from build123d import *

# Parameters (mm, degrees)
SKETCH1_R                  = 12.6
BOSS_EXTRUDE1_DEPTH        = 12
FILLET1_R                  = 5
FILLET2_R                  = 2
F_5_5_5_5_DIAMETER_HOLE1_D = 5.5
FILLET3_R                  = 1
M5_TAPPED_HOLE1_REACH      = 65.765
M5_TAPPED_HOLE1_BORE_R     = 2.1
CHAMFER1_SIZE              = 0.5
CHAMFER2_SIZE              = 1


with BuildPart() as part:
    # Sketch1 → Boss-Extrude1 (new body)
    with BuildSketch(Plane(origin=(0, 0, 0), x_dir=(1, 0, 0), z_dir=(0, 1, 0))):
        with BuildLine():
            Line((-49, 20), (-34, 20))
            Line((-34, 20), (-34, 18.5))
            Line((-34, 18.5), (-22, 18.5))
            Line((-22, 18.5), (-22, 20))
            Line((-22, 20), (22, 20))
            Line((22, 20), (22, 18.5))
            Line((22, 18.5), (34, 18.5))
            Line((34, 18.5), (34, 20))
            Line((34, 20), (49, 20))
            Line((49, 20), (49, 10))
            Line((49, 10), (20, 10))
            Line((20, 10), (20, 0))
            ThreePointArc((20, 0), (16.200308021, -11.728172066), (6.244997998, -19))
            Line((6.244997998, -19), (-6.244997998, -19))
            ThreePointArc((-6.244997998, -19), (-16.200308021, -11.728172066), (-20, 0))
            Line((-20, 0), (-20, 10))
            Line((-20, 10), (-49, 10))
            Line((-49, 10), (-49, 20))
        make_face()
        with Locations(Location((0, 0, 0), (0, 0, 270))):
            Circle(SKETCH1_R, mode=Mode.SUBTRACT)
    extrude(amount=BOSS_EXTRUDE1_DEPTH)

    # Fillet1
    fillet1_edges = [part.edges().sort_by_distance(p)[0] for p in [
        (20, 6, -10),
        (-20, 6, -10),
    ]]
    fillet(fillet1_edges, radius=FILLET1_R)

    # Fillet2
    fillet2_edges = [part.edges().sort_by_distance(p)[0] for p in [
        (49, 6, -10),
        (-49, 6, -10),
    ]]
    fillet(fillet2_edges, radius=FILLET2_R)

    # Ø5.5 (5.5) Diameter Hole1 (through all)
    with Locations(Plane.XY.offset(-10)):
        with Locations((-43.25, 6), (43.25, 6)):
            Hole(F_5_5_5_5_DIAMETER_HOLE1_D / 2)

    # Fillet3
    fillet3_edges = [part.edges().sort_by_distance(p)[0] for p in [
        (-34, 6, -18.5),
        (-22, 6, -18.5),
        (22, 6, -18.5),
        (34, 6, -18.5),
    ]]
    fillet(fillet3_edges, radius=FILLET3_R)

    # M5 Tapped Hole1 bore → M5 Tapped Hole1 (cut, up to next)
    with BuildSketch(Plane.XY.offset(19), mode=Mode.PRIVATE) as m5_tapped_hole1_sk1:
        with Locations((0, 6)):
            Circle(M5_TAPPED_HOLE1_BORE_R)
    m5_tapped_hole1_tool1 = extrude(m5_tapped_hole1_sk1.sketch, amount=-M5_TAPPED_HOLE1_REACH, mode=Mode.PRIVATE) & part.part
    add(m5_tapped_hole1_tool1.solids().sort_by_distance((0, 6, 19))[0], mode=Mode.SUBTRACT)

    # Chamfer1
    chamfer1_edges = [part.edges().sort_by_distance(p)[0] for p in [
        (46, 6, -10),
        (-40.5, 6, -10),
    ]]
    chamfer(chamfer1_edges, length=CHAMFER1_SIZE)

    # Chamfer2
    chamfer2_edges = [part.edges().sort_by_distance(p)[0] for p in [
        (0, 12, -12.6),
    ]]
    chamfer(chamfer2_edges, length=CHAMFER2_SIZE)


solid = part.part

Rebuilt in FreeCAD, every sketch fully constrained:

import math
import FreeCAD as App
import Part
import Sketcher

V = App.Vector
Q = App.Units.Quantity


def edges_at(feature, points):
    """Names of the edges that pass closest to the given points."""
    edges = feature.Shape.Edges
    near = lambda p: min(range(len(edges)), key=lambda i: edges[i].distToShape(Part.Vertex(*p))[0])
    return sorted({f"Edge{near(p) + 1}" for p in points})

doc = App.newDocument("Part")
params = doc.addObject("Spreadsheet::Sheet", "Params")
for row, (alias, value) in enumerate([
    ("sketch1_radius", "20 mm"),
    ("sketch1_diameter", "25.2 mm"),
    ("sketch1_width", "15 mm"),
    ("sketch1_width2", "29 mm"),
    ("sketch1_width3", "12 mm"),
    ("pad1_length", "12 mm"),
    ("fillet_radius", "5 mm"),
    ("fillet2_radius", "2 mm"),
    ("sketch2_diameter", "5.5 mm"),
    ("hole_diameter", "5.5 mm"),
    ("fillet3_radius", "1 mm"),
    ("sketch3_diameter", "4.2 mm"),
    ("chamfer_size", "0.5 mm"),
    ("chamfer2_size", "1 mm"),
], start=1):
    params.set(f"A{row}", alias)
    params.set(f"B{row}", "=" + value)
    params.setAlias(f"B{row}", alias)

body = doc.addObject("PartDesign::Body", "Body")

# Sketch on XZ plane
sketch1 = body.newObject("Sketcher::SketchObject", "Sketch")
sketch1.AttachmentSupport = (doc.getObject("XZ_Plane"), [""])
sketch1.MapMode = "FlatFace"
sketch1.addGeometry(Part.LineSegment(V(-34, -20, 0), V(-49, -20, 0)), False)
sketch1.addGeometry(Part.LineSegment(V(-49, -20, 0), V(-49, -10, 0)), False)
sketch1.addGeometry(Part.LineSegment(V(-49, -10, 0), V(-20, -10, 0)), False)
sketch1.addGeometry(Part.LineSegment(V(-20, -10, 0), V(-20, 0, 0)), False)
sketch1.addGeometry(Part.ArcOfCircle(Part.Circle(V(0, 0, 0), V(0, 0, 1), 20), math.radians(108), math.radians(180)), False)
sketch1.addGeometry(Part.LineSegment(V(-6.2, 19, 0), V(6.2, 19, 0)), False)
sketch1.addGeometry(Part.ArcOfCircle(Part.Circle(V(0, 0, 0), V(0, 0, 1), 20), math.radians(0), math.radians(72)), False)
sketch1.addGeometry(Part.LineSegment(V(20, 0, 0), V(20, -10, 0)), False)
sketch1.addGeometry(Part.LineSegment(V(20, -10, 0), V(49, -10, 0)), False)
sketch1.addGeometry(Part.LineSegment(V(49, -10, 0), V(49, -20, 0)), False)
sketch1.addGeometry(Part.LineSegment(V(49, -20, 0), V(34, -20, 0)), False)
sketch1.addGeometry(Part.LineSegment(V(34, -20, 0), V(34, -18.5, 0)), False)
sketch1.addGeometry(Part.LineSegment(V(34, -18.5, 0), V(22, -18.5, 0)), False)
sketch1.addGeometry(Part.LineSegment(V(22, -18.5, 0), V(22, -20, 0)), False)
sketch1.addGeometry(Part.LineSegment(V(22, -20, 0), V(-22, -20, 0)), False)
sketch1.addGeometry(Part.LineSegment(V(-22, -20, 0), V(-22, -18.5, 0)), False)
sketch1.addGeometry(Part.LineSegment(V(-22, -18.5, 0), V(-34, -18.5, 0)), False)
sketch1.addGeometry(Part.LineSegment(V(-34, -18.5, 0), V(-34, -20, 0)), False)
sketch1.addGeometry(Part.Circle(V(0, 0, 0), V(0, 0, 1), 12.6), False)
sketch1.addConstraint(Sketcher.Constraint("Coincident", 0, 2, 1, 1))
sketch1.addConstraint(Sketcher.Constraint("Coincident", 1, 2, 2, 1))
sketch1.addConstraint(Sketcher.Constraint("Coincident", 2, 2, 3, 1))
sketch1.addConstraint(Sketcher.Constraint("Tangent", 3, 2, 4, 2))
sketch1.addConstraint(Sketcher.Constraint("Coincident", 4, 1, 5, 1))
sketch1.addConstraint(Sketcher.Constraint("Coincident", 5, 2, 6, 2))
sketch1.addConstraint(Sketcher.Constraint("Tangent", 6, 1, 7, 1))
sketch1.addConstraint(Sketcher.Constraint("Coincident", 7, 2, 8, 1))
sketch1.addConstraint(Sketcher.Constraint("Coincident", 8, 2, 9, 1))
sketch1.addConstraint(Sketcher.Constraint("Coincident", 9, 2, 10, 1))
sketch1.addConstraint(Sketcher.Constraint("Coincident", 10, 2, 11, 1))
sketch1.addConstraint(Sketcher.Constraint("Coincident", 11, 2, 12, 1))
sketch1.addConstraint(Sketcher.Constraint("Coincident", 12, 2, 13, 1))
sketch1.addConstraint(Sketcher.Constraint("Coincident", 13, 2, 14, 1))
sketch1.addConstraint(Sketcher.Constraint("Coincident", 14, 2, 15, 1))
sketch1.addConstraint(Sketcher.Constraint("Coincident", 15, 2, 16, 1))
sketch1.addConstraint(Sketcher.Constraint("Coincident", 16, 2, 17, 1))
sketch1.addConstraint(Sketcher.Constraint("Coincident", 17, 2, 0, 1))
sketch1.addConstraint(Sketcher.Constraint("Horizontal", 0))
sketch1.addConstraint(Sketcher.Constraint("Vertical", 1))
sketch1.addConstraint(Sketcher.Constraint("Horizontal", 2))
sketch1.addConstraint(Sketcher.Constraint("Vertical", 3))
sketch1.addConstraint(Sketcher.Constraint("Horizontal", 5))
sketch1.addConstraint(Sketcher.Constraint("Vertical", 7))
sketch1.addConstraint(Sketcher.Constraint("Horizontal", 8))
sketch1.addConstraint(Sketcher.Constraint("Vertical", 9))
sketch1.addConstraint(Sketcher.Constraint("Horizontal", 10))
sketch1.addConstraint(Sketcher.Constraint("Vertical", 11))
sketch1.addConstraint(Sketcher.Constraint("Horizontal", 12))
sketch1.addConstraint(Sketcher.Constraint("Vertical", 13))
sketch1.addConstraint(Sketcher.Constraint("Horizontal", 14))
sketch1.addConstraint(Sketcher.Constraint("Vertical", 15))
sketch1.addConstraint(Sketcher.Constraint("Horizontal", 16))
sketch1.addConstraint(Sketcher.Constraint("Vertical", 17))
sketch1.addConstraint(Sketcher.Constraint("Coincident", 4, 3, -1, 1))
sketch1.addConstraint(Sketcher.Constraint("Coincident", 6, 3, -1, 1))
sketch1.addConstraint(Sketcher.Constraint("Coincident", 18, 3, -1, 1))
sketch1.addConstraint(Sketcher.Constraint("Equal", 4, 6))
sketch1.addConstraint(Sketcher.Constraint("Symmetric", 1, 2, 8, 2, -2))
sketch1.addConstraint(Sketcher.Constraint("Symmetric", 12, 2, 15, 2, -2))
sketch1.addConstraint(Sketcher.Constraint("Symmetric", 10, 2, 17, 2, -2))
sketch1.addConstraint(Sketcher.Constraint("Horizontal", 10, 2, 13, 2))
sketch1.addConstraint(Sketcher.Constraint("Equal", 1, 3))
sketch1.addConstraint(Sketcher.Constraint("Radius", 4, Q("20 mm")))
sketch1.addConstraint(Sketcher.Constraint("Diameter", 18, Q("25.2 mm")))
sketch1.addConstraint(Sketcher.Constraint("DistanceX", 0, 2, 0, 1, Q("15 mm")))
sketch1.addConstraint(Sketcher.Constraint("DistanceX", 2, 1, 2, 2, Q("29 mm")))
sketch1.addConstraint(Sketcher.Constraint("DistanceX", 12, 2, 12, 1, Q("12 mm")))
sketch1.addConstraint(Sketcher.Constraint("DistanceY", 1, 1, 1, 2, Q("10 mm")))
sketch1.addConstraint(Sketcher.Constraint("DistanceY", 11, 1, 11, 2, Q("1.5 mm")))
sketch1.addConstraint(Sketcher.Constraint("DistanceY", -1, 1, 4, 1, Q("19 mm")))
sketch1.setExpression("Constraints[43]", "Params.sketch1_radius")
sketch1.setExpression("Constraints[44]", "Params.sketch1_diameter")
sketch1.setExpression("Constraints[45]", "Params.sketch1_width")
sketch1.setExpression("Constraints[46]", "Params.sketch1_width2")
sketch1.setExpression("Constraints[47]", "Params.sketch1_width3")
pad1 = body.newObject("PartDesign::Pad", "Pad")
pad1.Profile = sketch1
pad1.setExpression("Length", "Params.pad1_length")
pad1.Reversed = True
doc.recompute()

fillet = body.newObject("PartDesign::Fillet", "Fillet")
fillet.Base = (pad1, edges_at(pad1, [(20, 6, -10), (-20, 6, -10)]))
fillet.setExpression("Radius", "Params.fillet_radius")
doc.recompute()

fillet2 = body.newObject("PartDesign::Fillet", "Fillet001")
fillet2.Base = (fillet, edges_at(fillet, [(49, 6, -10), (-49, 6, -10)]))
fillet2.setExpression("Radius", "Params.fillet2_radius")

# Sketch on XY plane
sketch2 = body.newObject("Sketcher::SketchObject", "Sketch001")
sketch2.AttachmentSupport = (doc.getObject("XY_Plane"), [""])
sketch2.MapMode = "FlatFace"
sketch2.AttachmentOffset = App.Placement(V(0, 0, -10), App.Rotation())
sketch2.addGeometry(Part.Circle(V(-43.2, 6, 0), V(0, 0, 1), 2.8), False)
sketch2.addGeometry(Part.Circle(V(43.2, 6, 0), V(0, 0, 1), 2.8), False)
sketch2.addConstraint(Sketcher.Constraint("Equal", 0, 1))
sketch2.addConstraint(Sketcher.Constraint("Symmetric", 0, 3, 1, 3, -2))
sketch2.addConstraint(Sketcher.Constraint("Diameter", 0, Q("5.5 mm")))
sketch2.addConstraint(Sketcher.Constraint("DistanceY", -1, 1, 0, 3, Q("6 mm")))
sketch2.addConstraint(Sketcher.Constraint("DistanceX", 0, 3, 1, 3, Q("86.5 mm")))
sketch2.setExpression("Constraints[2]", "Params.sketch2_diameter")
doc.recompute()
hole = body.newObject("PartDesign::Hole", "Hole")
hole.Profile = sketch2
hole.ThreadType = "None"
hole.setExpression("Diameter", "Params.hole_diameter")
hole.DepthType = "ThroughAll"
doc.recompute()

fillet3 = body.newObject("PartDesign::Fillet", "Fillet002")
fillet3.Base = (hole, edges_at(hole, [
    (-34, 6, -18.5),
    (-22, 6, -18.5),
    (22, 6, -18.5),
    (34, 6, -18.5),
]))
fillet3.setExpression("Radius", "Params.fillet3_radius")

# Sketch on XY plane
sketch3 = body.newObject("Sketcher::SketchObject", "Sketch002")
sketch3.AttachmentSupport = (doc.getObject("XY_Plane"), [""])
sketch3.MapMode = "FlatFace"
sketch3.AttachmentOffset = App.Placement(V(0, 0, 19), App.Rotation())
sketch3.addGeometry(Part.Circle(V(0, 6, 0), V(0, 0, 1), 2.1), False)
sketch3.addConstraint(Sketcher.Constraint("PointOnObject", 0, 3, -2))
sketch3.addConstraint(Sketcher.Constraint("Diameter", 0, Q("4.2 mm")))
sketch3.addConstraint(Sketcher.Constraint("DistanceY", -1, 1, 0, 3, Q("6 mm")))
sketch3.setExpression("Constraints[1]", "Params.sketch3_diameter")
pocket1 = body.newObject("PartDesign::Pocket", "Pocket")
pocket1.Profile = sketch3
pocket1.Type = "UpToFirst"
doc.recompute()

chamfer = body.newObject("PartDesign::Chamfer", "Chamfer")
chamfer.Base = (pocket1, edges_at(pocket1, [(46, 6, -10), (-40.5, 6, -10)]))
chamfer.setExpression("Size", "Params.chamfer_size")
doc.recompute()

chamfer2 = body.newObject("PartDesign::Chamfer", "Chamfer001")
chamfer2.Base = (chamfer, edges_at(chamfer, [(0, 12, -12.6)]))
chamfer2.setExpression("Size", "Params.chamfer2_size")

doc.recompute()
